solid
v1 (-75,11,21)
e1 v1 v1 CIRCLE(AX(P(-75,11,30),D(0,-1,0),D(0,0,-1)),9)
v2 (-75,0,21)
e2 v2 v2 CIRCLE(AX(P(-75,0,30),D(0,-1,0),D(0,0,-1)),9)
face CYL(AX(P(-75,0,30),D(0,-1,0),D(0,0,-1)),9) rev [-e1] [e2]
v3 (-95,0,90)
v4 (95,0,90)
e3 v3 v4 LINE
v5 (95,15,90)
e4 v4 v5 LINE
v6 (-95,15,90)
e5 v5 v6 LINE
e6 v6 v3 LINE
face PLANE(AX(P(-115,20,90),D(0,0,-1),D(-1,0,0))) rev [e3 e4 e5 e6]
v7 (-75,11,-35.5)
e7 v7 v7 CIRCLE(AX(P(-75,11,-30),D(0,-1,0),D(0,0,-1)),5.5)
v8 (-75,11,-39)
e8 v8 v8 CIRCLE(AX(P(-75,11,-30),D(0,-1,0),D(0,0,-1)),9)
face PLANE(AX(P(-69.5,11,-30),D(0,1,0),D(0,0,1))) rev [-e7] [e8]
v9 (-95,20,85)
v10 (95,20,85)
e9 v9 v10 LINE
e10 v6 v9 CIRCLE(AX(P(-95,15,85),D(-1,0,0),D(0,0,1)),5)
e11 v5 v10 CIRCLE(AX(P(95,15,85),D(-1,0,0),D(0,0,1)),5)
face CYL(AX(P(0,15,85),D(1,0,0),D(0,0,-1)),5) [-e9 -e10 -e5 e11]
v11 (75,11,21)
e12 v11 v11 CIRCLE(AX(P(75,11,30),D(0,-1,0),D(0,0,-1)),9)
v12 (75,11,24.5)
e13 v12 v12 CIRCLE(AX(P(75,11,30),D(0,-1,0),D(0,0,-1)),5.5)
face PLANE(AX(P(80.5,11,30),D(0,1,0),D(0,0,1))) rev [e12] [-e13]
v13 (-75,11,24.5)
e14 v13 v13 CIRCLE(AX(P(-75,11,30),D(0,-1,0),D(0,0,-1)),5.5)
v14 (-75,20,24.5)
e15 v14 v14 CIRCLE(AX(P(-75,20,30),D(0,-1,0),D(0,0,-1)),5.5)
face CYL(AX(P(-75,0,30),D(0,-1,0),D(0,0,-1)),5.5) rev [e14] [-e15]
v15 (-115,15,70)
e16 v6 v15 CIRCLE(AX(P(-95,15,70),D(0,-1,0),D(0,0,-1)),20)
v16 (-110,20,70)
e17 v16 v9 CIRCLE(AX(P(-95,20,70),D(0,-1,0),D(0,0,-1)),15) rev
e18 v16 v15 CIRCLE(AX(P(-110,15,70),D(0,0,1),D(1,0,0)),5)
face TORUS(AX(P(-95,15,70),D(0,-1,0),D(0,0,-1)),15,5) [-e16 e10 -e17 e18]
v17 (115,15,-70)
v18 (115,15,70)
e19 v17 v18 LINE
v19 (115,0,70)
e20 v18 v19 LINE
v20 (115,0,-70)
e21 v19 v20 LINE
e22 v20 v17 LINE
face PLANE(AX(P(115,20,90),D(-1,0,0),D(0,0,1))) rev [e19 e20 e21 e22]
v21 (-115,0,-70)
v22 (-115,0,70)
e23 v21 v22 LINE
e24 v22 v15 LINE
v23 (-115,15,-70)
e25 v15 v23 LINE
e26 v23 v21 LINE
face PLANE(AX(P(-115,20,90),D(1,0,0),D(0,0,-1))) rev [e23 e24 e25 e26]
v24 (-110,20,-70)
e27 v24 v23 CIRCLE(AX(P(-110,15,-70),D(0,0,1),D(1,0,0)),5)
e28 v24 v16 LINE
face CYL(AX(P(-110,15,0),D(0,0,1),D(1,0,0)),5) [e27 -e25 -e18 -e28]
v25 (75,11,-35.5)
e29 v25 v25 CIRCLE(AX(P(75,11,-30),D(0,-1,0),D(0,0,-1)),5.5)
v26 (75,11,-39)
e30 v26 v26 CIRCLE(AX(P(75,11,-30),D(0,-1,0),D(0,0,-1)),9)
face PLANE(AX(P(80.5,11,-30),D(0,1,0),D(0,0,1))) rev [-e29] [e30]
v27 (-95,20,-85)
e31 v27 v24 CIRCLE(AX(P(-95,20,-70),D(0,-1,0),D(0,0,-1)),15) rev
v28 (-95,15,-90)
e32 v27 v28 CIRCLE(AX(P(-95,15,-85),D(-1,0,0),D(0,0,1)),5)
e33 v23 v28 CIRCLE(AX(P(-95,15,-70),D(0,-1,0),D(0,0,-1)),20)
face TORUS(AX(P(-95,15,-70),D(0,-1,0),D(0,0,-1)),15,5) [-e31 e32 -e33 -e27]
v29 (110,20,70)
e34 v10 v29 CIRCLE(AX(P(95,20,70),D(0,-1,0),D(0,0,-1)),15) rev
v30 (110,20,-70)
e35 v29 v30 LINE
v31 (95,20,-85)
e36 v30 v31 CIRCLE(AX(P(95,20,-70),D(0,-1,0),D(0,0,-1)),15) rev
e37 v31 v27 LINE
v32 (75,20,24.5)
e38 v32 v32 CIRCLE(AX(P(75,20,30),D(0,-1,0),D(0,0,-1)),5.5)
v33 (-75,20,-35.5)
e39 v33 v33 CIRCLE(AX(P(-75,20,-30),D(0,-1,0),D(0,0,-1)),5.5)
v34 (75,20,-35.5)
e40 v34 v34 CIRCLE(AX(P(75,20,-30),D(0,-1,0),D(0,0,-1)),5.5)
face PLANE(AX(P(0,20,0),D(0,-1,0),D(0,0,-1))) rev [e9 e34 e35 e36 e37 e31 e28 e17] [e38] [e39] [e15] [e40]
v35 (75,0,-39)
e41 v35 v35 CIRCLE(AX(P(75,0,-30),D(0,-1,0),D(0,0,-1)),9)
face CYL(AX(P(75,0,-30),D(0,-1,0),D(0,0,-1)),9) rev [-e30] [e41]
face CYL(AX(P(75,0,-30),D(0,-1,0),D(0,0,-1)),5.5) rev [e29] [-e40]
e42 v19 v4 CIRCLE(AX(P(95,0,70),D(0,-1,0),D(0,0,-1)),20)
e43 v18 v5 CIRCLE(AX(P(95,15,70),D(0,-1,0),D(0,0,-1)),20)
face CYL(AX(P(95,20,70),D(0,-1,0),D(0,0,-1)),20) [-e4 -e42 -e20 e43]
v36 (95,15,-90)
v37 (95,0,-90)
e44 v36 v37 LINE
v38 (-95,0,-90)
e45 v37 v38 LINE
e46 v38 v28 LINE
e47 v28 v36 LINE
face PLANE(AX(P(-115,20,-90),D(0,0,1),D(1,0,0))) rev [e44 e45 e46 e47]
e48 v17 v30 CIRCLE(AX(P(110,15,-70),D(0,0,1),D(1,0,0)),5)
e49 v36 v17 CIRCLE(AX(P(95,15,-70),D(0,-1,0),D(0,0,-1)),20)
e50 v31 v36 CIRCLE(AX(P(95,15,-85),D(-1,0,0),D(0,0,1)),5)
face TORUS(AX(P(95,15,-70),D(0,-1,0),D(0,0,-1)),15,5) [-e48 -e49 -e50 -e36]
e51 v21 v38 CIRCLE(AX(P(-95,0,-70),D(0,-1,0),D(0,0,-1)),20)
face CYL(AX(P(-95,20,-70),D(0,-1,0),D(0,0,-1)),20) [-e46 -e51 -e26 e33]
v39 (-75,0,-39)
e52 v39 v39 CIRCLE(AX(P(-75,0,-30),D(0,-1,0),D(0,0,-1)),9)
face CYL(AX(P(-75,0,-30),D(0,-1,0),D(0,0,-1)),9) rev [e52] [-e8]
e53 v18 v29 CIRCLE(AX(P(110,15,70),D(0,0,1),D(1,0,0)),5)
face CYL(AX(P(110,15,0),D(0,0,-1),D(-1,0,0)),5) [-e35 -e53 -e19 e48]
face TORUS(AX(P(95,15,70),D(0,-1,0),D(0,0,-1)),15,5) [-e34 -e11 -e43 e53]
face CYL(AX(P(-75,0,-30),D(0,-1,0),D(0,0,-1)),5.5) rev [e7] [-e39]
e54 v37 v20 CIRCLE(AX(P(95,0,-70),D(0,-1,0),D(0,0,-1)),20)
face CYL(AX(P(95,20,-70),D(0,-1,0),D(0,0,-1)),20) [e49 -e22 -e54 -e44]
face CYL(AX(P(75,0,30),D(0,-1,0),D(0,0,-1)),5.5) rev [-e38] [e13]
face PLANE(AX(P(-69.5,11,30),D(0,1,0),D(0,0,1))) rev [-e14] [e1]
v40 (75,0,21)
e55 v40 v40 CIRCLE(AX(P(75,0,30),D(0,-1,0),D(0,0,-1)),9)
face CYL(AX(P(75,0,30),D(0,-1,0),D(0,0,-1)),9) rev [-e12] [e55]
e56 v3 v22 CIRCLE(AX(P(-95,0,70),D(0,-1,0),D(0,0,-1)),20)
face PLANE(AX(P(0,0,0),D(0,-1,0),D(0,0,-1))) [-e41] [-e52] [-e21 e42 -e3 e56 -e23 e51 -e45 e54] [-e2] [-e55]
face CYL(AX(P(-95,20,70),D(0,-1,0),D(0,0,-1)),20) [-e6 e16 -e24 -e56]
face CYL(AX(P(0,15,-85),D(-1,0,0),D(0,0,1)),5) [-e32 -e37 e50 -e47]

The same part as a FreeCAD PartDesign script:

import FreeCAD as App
import Part
import Sketcher

V = App.Vector


def edges_at(feature, points):
    """Names of the edges that pass closest to the given points."""
    edges = feature.Shape.Edges
    near = lambda p: min(range(len(edges)), key=lambda i: edges[i].distToShape(Part.Vertex(*p))[0])
    return sorted({f"Edge{near(p) + 1}" for p in points})

doc = App.newDocument("Part")
params = doc.addObject("Spreadsheet::Sheet", "Params")
for row, (alias, value) in enumerate([
    ("sketch1_width", "230 mm"),
    ("sketch1_height", "180 mm"),
    ("pad1_length", "20 mm"),
    ("fillet_radius", "20 mm"),
    ("fillet2_radius", "5 mm"),
    ("sketch2_diameter", "11 mm"),
    ("hole_diameter", "11 mm"),
    ("hole_depth", "20 mm"),
    ("hole_cbore_diameter", "18 mm"),
    ("hole_cbore_depth", "11 mm"),
], start=1):
    params.set(f"A{row}", alias)
    params.set(f"B{row}", "=" + value)
    params.setAlias(f"B{row}", alias)

body = doc.addObject("PartDesign::Body", "Body")

# Sketch on XZ plane
sketch1 = body.newObject("Sketcher::SketchObject", "Sketch")
sketch1.AttachmentSupport = (doc.getObject("XZ_Plane"), [""])
sketch1.MapMode = "FlatFace"
sketch1.addGeometry([
    Part.LineSegment(V(-115, -90, 0), V(-115, 90, 0)),
    Part.LineSegment(V(-115, 90, 0), V(115, 90, 0)),
    Part.LineSegment(V(115, 90, 0), V(115, -90, 0)),
    Part.LineSegment(V(115, -90, 0), V(-115, -90, 0)),
], False)
sketch1.addConstraint([
    Sketcher.Constraint("Coincident", 0, 2, 1, 1),
    Sketcher.Constraint("Coincident", 1, 2, 2, 1),
    Sketcher.Constraint("Coincident", 2, 2, 3, 1),
    Sketcher.Constraint("Coincident", 3, 2, 0, 1),
    Sketcher.Constraint("Vertical", 0),
    Sketcher.Constraint("Horizontal", 1),
    Sketcher.Constraint("Vertical", 2),
    Sketcher.Constraint("Horizontal", 3),
    Sketcher.Constraint("Symmetric", 0, 2, 2, 2, -1, 1),
    Sketcher.Constraint("DistanceX", 1, 1, 1, 2, 230.0),
    Sketcher.Constraint("DistanceY", 0, 1, 0, 2, 180.0),
])
sketch1.setExpression("Constraints[9]", "Params.sketch1_width")
sketch1.setExpression("Constraints[10]", "Params.sketch1_height")
pad1 = body.newObject("PartDesign::Pad", "Pad")
pad1.Profile = sketch1
pad1.setExpression("Length", "Params.pad1_length")
pad1.Reversed = True
doc.recompute()

fillet = body.newObject("PartDesign::Fillet", "Fillet")
fillet.Base = (pad1, edges_at(pad1, [
    (115, 10, 90),
    (-115, 10, 90),
    (-115, 10, -90),
    (115, 10, -90),
]))
fillet.setExpression("Radius", "Params.fillet_radius")
doc.recompute()

fillet2 = body.newObject("PartDesign::Fillet", "Fillet001")
fillet2.Base = (fillet, edges_at(fillet, [
    (0, 20, 90),
    (-115, 20, 0),
    (115, 20, 0),
    (0, 20, -90),
    (109.142, 20, 84.142),
    (109.142, 20, -84.142),
    (-109.142, 20, -84.142),
    (-109.142, 20, 84.142),
]))
fillet2.setExpression("Radius", "Params.fillet2_radius")

# Sketch on XZ plane
sketch2 = body.newObject("Sketcher::SketchObject", "Sketch001")
sketch2.AttachmentSupport = (doc.getObject("XZ_Plane"), [""])
sketch2.MapMode = "FlatFace"
sketch2.addGeometry([
    Part.Circle(V(75, -30, 0), V(0, 0, 1), 6),
    Part.Circle(V(75, 30, 0), V(0, 0, 1), 6),
    Part.Circle(V(-75, 30, 0), V(0, 0, 1), 6),
    Part.Circle(V(-75, -30, 0), V(0, 0, 1), 6),
], False)
sketch2.addConstraint([
    Sketcher.Constraint("Equal", 0, 1),
    Sketcher.Constraint("Equal", 1, 2),
    Sketcher.Constraint("Equal", 2, 3),
    Sketcher.Constraint("Symmetric", 0, 3, 2, 3, -1, 1),
    Sketcher.Constraint("Symmetric", 1, 3, 3, 3, -1, 1),
    Sketcher.Constraint("Symmetric", 1, 3, 2, 3, -2),
    Sketcher.Constraint("Diameter", 0, 11.0),
    Sketcher.Constraint("DistanceX", -1, 1, 0, 3, 75.0),
    Sketcher.Constraint("DistanceY", 0, 3, -1, 1, 30.0),
])
sketch2.setExpression("Constraints[6]", "Params.sketch2_diameter")
doc.recompute()
hole = body.newObject("PartDesign::Hole", "Hole")
hole.Profile = sketch2
hole.ThreadType = "None"
hole.setExpression("Diameter", "Params.hole_diameter")
hole.DepthType = "Dimension"
hole.setExpression("Depth", "Params.hole_depth")
hole.DrillPoint = "Angled"
hole.DrillPointAngle = 118
hole.HoleCutType = "Counterbore"
hole.setExpression("HoleCutDiameter", "Params.hole_cbore_diameter")
hole.setExpression("HoleCutDepth", "Params.hole_cbore_depth")

doc.recompute()
